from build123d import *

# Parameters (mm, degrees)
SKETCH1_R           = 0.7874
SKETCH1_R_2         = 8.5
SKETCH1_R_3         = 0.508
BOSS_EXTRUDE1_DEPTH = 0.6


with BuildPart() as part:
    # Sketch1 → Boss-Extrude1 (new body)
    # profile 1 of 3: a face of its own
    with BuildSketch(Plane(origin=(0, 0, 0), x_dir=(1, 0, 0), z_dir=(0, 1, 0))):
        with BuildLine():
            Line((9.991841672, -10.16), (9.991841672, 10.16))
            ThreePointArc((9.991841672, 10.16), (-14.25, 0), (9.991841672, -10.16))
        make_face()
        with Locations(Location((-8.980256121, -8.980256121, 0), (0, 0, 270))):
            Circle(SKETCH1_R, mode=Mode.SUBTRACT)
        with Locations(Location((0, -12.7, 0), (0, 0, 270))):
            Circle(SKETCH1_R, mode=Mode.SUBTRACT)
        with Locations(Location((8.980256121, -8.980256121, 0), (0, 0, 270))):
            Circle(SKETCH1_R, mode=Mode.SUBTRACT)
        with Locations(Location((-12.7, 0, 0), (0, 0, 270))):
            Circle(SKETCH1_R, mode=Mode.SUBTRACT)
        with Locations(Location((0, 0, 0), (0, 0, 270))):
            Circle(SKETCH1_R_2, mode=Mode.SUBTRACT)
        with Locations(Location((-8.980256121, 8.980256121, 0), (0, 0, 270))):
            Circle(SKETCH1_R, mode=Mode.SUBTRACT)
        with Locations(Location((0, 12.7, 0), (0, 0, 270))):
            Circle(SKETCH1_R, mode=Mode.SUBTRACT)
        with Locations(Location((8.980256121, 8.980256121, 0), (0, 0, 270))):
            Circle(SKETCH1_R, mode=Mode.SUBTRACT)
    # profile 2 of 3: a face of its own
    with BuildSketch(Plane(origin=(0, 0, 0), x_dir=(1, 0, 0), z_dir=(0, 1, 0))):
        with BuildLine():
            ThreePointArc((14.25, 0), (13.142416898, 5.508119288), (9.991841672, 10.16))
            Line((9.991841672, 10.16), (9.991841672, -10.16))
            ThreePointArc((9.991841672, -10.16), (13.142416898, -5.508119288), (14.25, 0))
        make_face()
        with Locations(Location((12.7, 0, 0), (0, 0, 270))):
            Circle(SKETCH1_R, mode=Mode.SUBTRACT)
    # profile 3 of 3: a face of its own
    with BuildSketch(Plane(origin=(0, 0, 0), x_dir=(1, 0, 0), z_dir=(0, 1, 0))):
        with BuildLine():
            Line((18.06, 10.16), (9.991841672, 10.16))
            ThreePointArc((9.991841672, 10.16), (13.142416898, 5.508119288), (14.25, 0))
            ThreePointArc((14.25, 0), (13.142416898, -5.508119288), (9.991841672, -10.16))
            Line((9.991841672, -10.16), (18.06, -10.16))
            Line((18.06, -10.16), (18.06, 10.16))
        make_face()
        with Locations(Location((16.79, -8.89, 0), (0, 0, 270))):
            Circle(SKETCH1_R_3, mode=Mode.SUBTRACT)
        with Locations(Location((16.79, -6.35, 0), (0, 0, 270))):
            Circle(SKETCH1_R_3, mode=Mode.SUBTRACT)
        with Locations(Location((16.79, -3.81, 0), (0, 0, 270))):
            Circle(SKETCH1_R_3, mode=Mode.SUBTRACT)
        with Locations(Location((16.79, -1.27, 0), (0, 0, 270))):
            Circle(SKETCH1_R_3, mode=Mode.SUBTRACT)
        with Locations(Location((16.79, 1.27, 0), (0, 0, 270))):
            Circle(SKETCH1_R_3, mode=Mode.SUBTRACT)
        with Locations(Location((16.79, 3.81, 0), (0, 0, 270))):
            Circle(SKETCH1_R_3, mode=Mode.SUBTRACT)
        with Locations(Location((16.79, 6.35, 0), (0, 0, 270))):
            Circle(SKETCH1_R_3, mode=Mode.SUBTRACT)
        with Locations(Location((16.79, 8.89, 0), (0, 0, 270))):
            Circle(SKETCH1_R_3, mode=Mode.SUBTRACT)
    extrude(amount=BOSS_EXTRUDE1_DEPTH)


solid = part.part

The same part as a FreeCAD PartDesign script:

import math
import FreeCAD as App
import Part
import Sketcher

V = App.Vector
Q = App.Units.Quantity

doc = App.newDocument("Part")
body = doc.addObject("PartDesign::Body", "Body")

# Sketch on XZ plane
sketch1 = body.newObject("Sketcher::SketchObject", "Sketch")
sketch1.AttachmentSupport = (doc.getObject("XZ_Plane"), [""])
sketch1.MapMode = "FlatFace"
sketch1.addGeometry([
    Part.ArcOfCircle(Part.Circle(V(0, 0, 0), V(0, 0, 1), 14.2), math.radians(45), math.radians(315)),  # 0
    Part.LineSegment(V(10, 10.2, 0), V(18.1, 10.2, 0)),  # 1
    Part.LineSegment(V(18.1, 10.2, 0), V(18.1, -10.2, 0)),  # 2
    Part.LineSegment(V(18.1, -10.2, 0), V(10, -10.2, 0)),  # 3
    Part.Circle(V(-9, 9, 0), V(0, 0, 1), 0.8),  # 4
    Part.Circle(V(0, 12.7, 0), V(0, 0, 1), 0.8),  # 5
    Part.Circle(V(9, 9, 0), V(0, 0, 1), 0.8),  # 6
    Part.Circle(V(-12.7, 0, 0), V(0, 0, 1), 0.8),  # 7
    Part.Circle(V(-9, -9, 0), V(0, 0, 1), 0.8),  # 8
    Part.Circle(V(0, 0, 0), V(0, 0, 1), 8.5),  # 9
    Part.Circle(V(0, -12.7, 0), V(0, 0, 1), 0.8),  # 10
    Part.Circle(V(9, -9, 0), V(0, 0, 1), 0.8),  # 11
    Part.Circle(V(12.7, 0, 0), V(0, 0, 1), 0.8),  # 12
    Part.Circle(V(16.8, -8.9, 0), V(0, 0, 1), 0.5),  # 13
    Part.Circle(V(16.8, -6.3, 0), V(0, 0, 1), 0.5),  # 14
    Part.Circle(V(16.8, 8.9, 0), V(0, 0, 1), 0.5),  # 15
    Part.Circle(V(16.8, 6.3, 0), V(0, 0, 1), 0.5),  # 16
    Part.Circle(V(16.8, 3.8, 0), V(0, 0, 1), 0.5),  # 17
    Part.Circle(V(16.8, 1.3, 0), V(0, 0, 1), 0.5),  # 18
    Part.Circle(V(16.8, -1.3, 0), V(0, 0, 1), 0.5),  # 19
    Part.Circle(V(16.8, -3.8, 0), V(0, 0, 1), 0.5),  # 20
], False)
sketch1.addConstraint([
    Sketcher.Constraint("Coincident", 0, 1, 1, 1),
    Sketcher.Constraint("Coincident", 1, 2, 2, 1),
    Sketcher.Constraint("Coincident", 2, 2, 3, 1),
    Sketcher.Constraint("Coincident", 3, 2, 0, 2),
    Sketcher.Constraint("Horizontal", 1),
    Sketcher.Constraint("Vertical", 2),
    Sketcher.Constraint("Horizontal", 3),
    Sketcher.Constraint("Coincident", 0, 3, -1, 1),
    Sketcher.Constraint("Coincident", 9, 3, -1, 1),
    Sketcher.Constraint("Equal", 4, 5),
    Sketcher.Constraint("Equal", 5, 6),
    Sketcher.Constraint("Equal", 6, 7),
    Sketcher.Constraint("Equal", 7, 8),
    Sketcher.Constraint("Equal", 8, 10),
    Sketcher.Constraint("Equal", 10, 11),
    Sketcher.Constraint("Equal", 11, 12),
    Sketcher.Constraint("Equal", 13, 14),
    Sketcher.Constraint("Equal", 14, 15),
    Sketcher.Constraint("Equal", 15, 16),
    Sketcher.Constraint("Equal", 16, 17),
    Sketcher.Constraint("Equal", 17, 18),
    Sketcher.Constraint("Equal", 18, 19),
    Sketcher.Constraint("Equal", 19, 20),
    Sketcher.Constraint("Symmetric", 6, 3, 8, 3, -1, 1),
    Sketcher.Constraint("Symmetric", 5, 3, 10, 3, -1, 1),
    Sketcher.Constraint("Symmetric", 4, 3, 11, 3, -1, 1),
    Sketcher.Constraint("Symmetric", 7, 3, 12, 3, -1, 1),
    Sketcher.Constraint("Symmetric", 4, 3, 6, 3, -2),
    Sketcher.Constraint("Symmetric", 13, 3, 15, 3, -1),
    Sketcher.Constraint("Symmetric", 14, 3, 16, 3, -1),
    Sketcher.Constraint("Symmetric", 18, 3, 19, 3, -1),
    Sketcher.Constraint("Symmetric", 17, 3, 20, 3, -1),
    Sketcher.Constraint("PointOnObject", 5, 3, -2),
    Sketcher.Constraint("PointOnObject", 7, 3, -1),
    Sketcher.Constraint("Vertical", 13, 3, 14, 3),
    Sketcher.Constraint("Vertical", 16, 3, 17, 3),
    Sketcher.Constraint("Vertical", 17, 3, 18, 3),
    Sketcher.Constraint("Vertical", 0, 1, 3, 2),
    Sketcher.Constraint("Diameter", 9, Q("17 mm")),
    Sketcher.Constraint("Radius", 0, Q("14.25 mm")),
    Sketcher.Constraint("Diameter", 13, Q("1.016 mm")),
    Sketcher.Constraint("Diameter", 4, Q("1.5748 mm")),
    Sketcher.Constraint("DistanceY", 2, 2, 2, 1, Q("20.32 mm")),
    Sketcher.Constraint("DistanceY", -1, 1, 5, 3, Q("12.7 mm")),
    Sketcher.Constraint("DistanceX", 7, 3, -1, 1, Q("12.7 mm")),
    Sketcher.Constraint("DistanceY", 14, 3, 16, 3, Q("12.7 mm")),
    Sketcher.Constraint("DistanceX", -1, 1, 13, 3, Q("16.79 mm")),
    Sketcher.Constraint("DistanceY", 13, 3, -1, 1, Q("8.89 mm")),
    Sketcher.Constraint("DistanceY", -1, 1, 17, 3, Q("3.81 mm")),
    Sketcher.Constraint("DistanceY", -1, 1, 18, 3, Q("1.27 mm")),
    Sketcher.Constraint("DistanceX", -1, 1, 1, 2, Q("18.06 mm")),
    Sketcher.Constraint("DistanceX", 4, 3, -1, 1, Q("8.980256 mm")),
    Sketcher.Constraint("DistanceY", -1, 1, 4, 3, Q("8.980256 mm")),
])
pad1 = body.newObject("PartDesign::Pad", "Pad")
pad1.Profile = sketch1
pad1.Length = 0.6
pad1.Reversed = True

doc.recompute()
